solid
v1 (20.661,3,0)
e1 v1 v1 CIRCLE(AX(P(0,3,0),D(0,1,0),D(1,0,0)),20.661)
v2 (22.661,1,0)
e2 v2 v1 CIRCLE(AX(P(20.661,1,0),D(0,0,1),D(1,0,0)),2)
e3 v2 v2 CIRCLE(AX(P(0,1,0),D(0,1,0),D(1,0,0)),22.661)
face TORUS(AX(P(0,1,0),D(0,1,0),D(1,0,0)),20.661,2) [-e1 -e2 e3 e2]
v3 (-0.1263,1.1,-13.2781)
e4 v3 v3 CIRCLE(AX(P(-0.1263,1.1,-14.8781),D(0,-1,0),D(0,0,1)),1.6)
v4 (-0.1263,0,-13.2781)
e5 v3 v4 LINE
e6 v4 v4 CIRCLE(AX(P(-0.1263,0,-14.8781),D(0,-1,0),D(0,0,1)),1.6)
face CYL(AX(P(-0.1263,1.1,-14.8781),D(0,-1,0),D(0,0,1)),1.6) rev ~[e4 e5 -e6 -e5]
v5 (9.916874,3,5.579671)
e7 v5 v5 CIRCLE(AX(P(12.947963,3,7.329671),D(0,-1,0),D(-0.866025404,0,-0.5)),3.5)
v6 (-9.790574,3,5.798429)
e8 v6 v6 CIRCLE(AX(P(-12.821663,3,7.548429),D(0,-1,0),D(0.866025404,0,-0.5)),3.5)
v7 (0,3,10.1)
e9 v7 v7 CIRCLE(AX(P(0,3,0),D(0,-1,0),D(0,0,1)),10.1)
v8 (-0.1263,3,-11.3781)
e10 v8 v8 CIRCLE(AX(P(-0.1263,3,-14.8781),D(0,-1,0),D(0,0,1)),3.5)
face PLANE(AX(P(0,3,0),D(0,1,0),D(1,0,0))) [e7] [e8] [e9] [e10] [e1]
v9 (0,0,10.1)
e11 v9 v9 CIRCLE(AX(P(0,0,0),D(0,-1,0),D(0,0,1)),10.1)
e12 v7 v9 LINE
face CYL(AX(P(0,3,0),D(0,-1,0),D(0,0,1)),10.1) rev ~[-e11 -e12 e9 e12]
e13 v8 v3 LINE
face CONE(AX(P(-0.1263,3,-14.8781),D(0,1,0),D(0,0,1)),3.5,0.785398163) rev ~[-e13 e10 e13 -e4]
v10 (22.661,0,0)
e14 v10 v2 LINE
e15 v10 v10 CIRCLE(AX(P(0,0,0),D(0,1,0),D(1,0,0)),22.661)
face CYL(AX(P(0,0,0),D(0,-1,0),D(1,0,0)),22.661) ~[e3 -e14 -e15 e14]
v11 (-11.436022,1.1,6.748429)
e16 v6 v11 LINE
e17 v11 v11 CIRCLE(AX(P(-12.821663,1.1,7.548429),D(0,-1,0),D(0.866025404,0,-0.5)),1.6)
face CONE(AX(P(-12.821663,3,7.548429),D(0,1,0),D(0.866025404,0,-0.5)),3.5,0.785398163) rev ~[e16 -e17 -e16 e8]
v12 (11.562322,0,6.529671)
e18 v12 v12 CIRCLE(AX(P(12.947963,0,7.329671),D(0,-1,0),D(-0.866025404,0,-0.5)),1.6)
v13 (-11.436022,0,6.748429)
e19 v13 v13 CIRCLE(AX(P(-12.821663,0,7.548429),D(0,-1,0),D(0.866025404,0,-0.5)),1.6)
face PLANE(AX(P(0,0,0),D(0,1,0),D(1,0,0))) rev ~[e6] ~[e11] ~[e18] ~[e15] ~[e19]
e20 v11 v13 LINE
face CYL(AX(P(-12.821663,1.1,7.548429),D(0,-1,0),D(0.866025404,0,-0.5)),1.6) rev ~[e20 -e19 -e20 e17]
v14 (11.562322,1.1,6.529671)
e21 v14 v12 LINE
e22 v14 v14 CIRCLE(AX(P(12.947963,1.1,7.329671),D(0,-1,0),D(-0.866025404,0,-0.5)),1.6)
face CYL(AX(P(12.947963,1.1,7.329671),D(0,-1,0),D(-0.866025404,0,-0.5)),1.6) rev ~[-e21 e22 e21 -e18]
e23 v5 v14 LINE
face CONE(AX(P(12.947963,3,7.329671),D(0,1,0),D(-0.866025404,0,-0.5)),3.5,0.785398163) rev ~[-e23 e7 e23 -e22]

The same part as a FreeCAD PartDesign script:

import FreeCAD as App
import Part
import Sketcher


def edges_at(feature, points):
    """Names of the edges that pass closest to the given points."""
    edges = feature.Shape.Edges
    near = lambda p: min(range(len(edges)), key=lambda i: edges[i].distToShape(Part.Vertex(*p))[0])
    return sorted({f"Edge{near(p) + 1}" for p in points})

doc = App.newDocument("Part")
body = doc.addObject("PartDesign::Body", "Body")

sketch1 = body.newObject("Sketcher::SketchObject", "Sketch")
sketch1.AttachmentSupport = (doc.getObject("XZ_Plane"), [""])
sketch1.MapMode = "FlatFace"
sketch1.addGeometry(Part.Circle(App.Vector(0, 0, 0), App.Vector(0, 0, 1), 23), False)
sketch1.addConstraint([
    Sketcher.Constraint("Coincident", 0, 3, -1, 1),
    Sketcher.Constraint("Diameter", 0, 45.322),
])
pad1 = body.newObject("PartDesign::Pad", "Pad")
pad1.Profile = sketch1
pad1.Length = 3
pad1.Reversed = True

sketch2 = body.newObject("Sketcher::SketchObject", "Sketch001")
sketch2.AttachmentSupport = (doc.getObject("XZ_Plane"), [""])
sketch2.MapMode = "FlatFace"
sketch2.AttachmentOffset = App.Placement(App.Vector(0, 0, -3), App.Rotation())
sketch2.addGeometry(Part.Circle(App.Vector(0, 0, 0), App.Vector(0, 0, 1), 10), False)
sketch2.addConstraint([
    Sketcher.Constraint("Coincident", 0, 3, -1, 1),
    Sketcher.Constraint("Diameter", 0, 20.2),
])
doc.recompute()
hole = body.newObject("PartDesign::Hole", "Hole")
hole.Profile = sketch2
hole.ThreadType = "None"
hole.Diameter = 20.2
hole.DepthType = "Dimension"
hole.Depth = 3
hole.DrillPoint = "Flat"
hole.Reversed = True

sketch3 = body.newObject("Sketcher::SketchObject", "Sketch002")
sketch3.AttachmentSupport = (doc.getObject("XZ_Plane"), [""])
sketch3.MapMode = "FlatFace"
sketch3.AttachmentOffset = App.Placement(App.Vector(0, 0, -3), App.Rotation())
sketch3.addGeometry(Part.Circle(App.Vector(-0.1, -14.9, 0), App.Vector(0, 0, 1), 1.6), False)
sketch3.addConstraint([
    Sketcher.Constraint("Diameter", 0, 3.2),
    Sketcher.Constraint("DistanceY", 0, 3, -1, 1, 14.878),
    Sketcher.Constraint("DistanceX", 0, 3, -1, 1, 0.1263),
])
doc.recompute()
hole2 = body.newObject("PartDesign::Hole", "Hole001")
hole2.Profile = sketch3
hole2.ThreadType = "None"
hole2.Diameter = 3.2
hole2.DepthType = "Dimension"
hole2.Depth = 30
hole2.DrillPoint = "Flat"
hole2.HoleCutType = "Countersink"
hole2.HoleCutDiameter = 7
hole2.HoleCutCountersinkAngle = 90
hole2.Reversed = True
doc.recompute()

polarpattern = body.newObject("PartDesign::PolarPattern", "PolarPattern")
polarpattern.Originals = [hole2]
polarpattern.Axis = (doc.getObject("Y_Axis"), [""])
polarpattern.Angle = 360
polarpattern.Occurrences = 3
body.Tip = polarpattern
doc.recompute()

fillet = body.newObject("PartDesign::Fillet", "Fillet")
fillet.Base = (polarpattern, edges_at(polarpattern, [(-21.127, 3, 8.195)]))
fillet.Radius = 2

doc.recompute()
